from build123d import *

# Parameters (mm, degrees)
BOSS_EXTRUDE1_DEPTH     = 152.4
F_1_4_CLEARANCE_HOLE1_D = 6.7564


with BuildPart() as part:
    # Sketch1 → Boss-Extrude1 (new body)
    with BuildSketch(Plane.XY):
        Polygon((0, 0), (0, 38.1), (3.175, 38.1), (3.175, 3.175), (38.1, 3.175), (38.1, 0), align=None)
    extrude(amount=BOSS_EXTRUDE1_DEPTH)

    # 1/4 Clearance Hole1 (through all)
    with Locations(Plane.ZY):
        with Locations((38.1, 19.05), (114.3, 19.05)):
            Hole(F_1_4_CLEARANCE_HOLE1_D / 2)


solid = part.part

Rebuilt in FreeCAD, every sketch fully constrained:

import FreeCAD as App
import Part
import Sketcher
Q = App.Units.Quantity

doc = App.newDocument("Part")
body = doc.addObject("PartDesign::Body", "Body")

sketch1 = doc.addObject("Sketcher::SketchObject", "Sketch")
body.addObject(sketch1)
sketch1.AttachmentSupport = (doc.XY_Plane, [""])
sketch1.MapMode = "FlatFace"
sketch1.addGeometry(Part.LineSegment(App.Vector(0, 38.1, 0), App.Vector(0, 0, 0)), False)
sketch1.addGeometry(Part.LineSegment(App.Vector(0, 0, 0), App.Vector(38.1, 0, 0)), False)
sketch1.addGeometry(Part.LineSegment(App.Vector(38.1, 0, 0), App.Vector(38.1, 3.2, 0)), False)
sketch1.addGeometry(Part.LineSegment(App.Vector(38.1, 3.2, 0), App.Vector(3.2, 3.2, 0)), False)
sketch1.addGeometry(Part.LineSegment(App.Vector(3.2, 3.2, 0), App.Vector(3.2, 38.1, 0)), False)
sketch1.addGeometry(Part.LineSegment(App.Vector(3.2, 38.1, 0), App.Vector(0, 38.1, 0)), False)
sketch1.addConstraint(Sketcher.Constraint("Coincident", 0, 2, 1, 1))
sketch1.addConstraint(Sketcher.Constraint("Coincident", 1, 2, 2, 1))
sketch1.addConstraint(Sketcher.Constraint("Coincident", 2, 2, 3, 1))
sketch1.addConstraint(Sketcher.Constraint("Coincident", 3, 2, 4, 1))
sketch1.addConstraint(Sketcher.Constraint("Coincident", 4, 2, 5, 1))
sketch1.addConstraint(Sketcher.Constraint("Coincident", 5, 2, 0, 1))
sketch1.addConstraint(Sketcher.Constraint("Vertical", 0))
sketch1.addConstraint(Sketcher.Constraint("Horizontal", 1))
sketch1.addConstraint(Sketcher.Constraint("Vertical", 2))
sketch1.addConstraint(Sketcher.Constraint("Horizontal", 3))
sketch1.addConstraint(Sketcher.Constraint("Vertical", 4))
sketch1.addConstraint(Sketcher.Constraint("Horizontal", 5))
sketch1.addConstraint(Sketcher.Constraint("Coincident", 0, 2, -1, 1))
sketch1.addConstraint(Sketcher.Constraint("Equal", 1, 0))
sketch1.addConstraint(Sketcher.Constraint("Equal", 5, 2))
sketch1.addConstraint(Sketcher.Constraint("DistanceX", 1, 1, 1, 2, Q("1.5 in")))
sketch1.addConstraint(Sketcher.Constraint("DistanceX", 3, 2, 3, 1, Q("1.375 in")))
pad1 = doc.addObject("PartDesign::Pad", "Pad")
body.addObject(pad1)
pad1.Profile = sketch1
pad1.Length = Q("6 in")

sketch2 = doc.addObject("Sketcher::SketchObject", "Sketch001")
body.addObject(sketch2)
sketch2.AttachmentSupport = (doc.YZ_Plane, [""])
sketch2.MapMode = "FlatFace"
sketch2.addGeometry(Part.Circle(App.Vector(19.1, 38.1, 0), App.Vector(0, 0, 1), 3.4), False)
sketch2.addGeometry(Part.Circle(App.Vector(19.1, 114.3, 0), App.Vector(0, 0, 1), 3.4), False)
sketch2.addConstraint(Sketcher.Constraint("Equal", 0, 1))
sketch2.addConstraint(Sketcher.Constraint("Vertical", 0, 3, 1, 3))
sketch2.addConstraint(Sketcher.Constraint("Diameter", 0, Q("0.266 in")))
sketch2.addConstraint(Sketcher.Constraint("DistanceY", 0, 3, 1, 3, Q("3 in")))
sketch2.addConstraint(Sketcher.Constraint("DistanceY", -1, 1, 0, 3, Q("1.5 in")))
sketch2.addConstraint(Sketcher.Constraint("DistanceX", -1, 1, 0, 3, Q("0.75 in")))
doc.recompute()
hole = doc.addObject("PartDesign::Hole", "Hole")
body.addObject(hole)
hole.Profile = sketch2
hole.ThreadType = "None"
hole.Diameter = Q("0.266 in")
hole.DepthType = "ThroughAll"
hole.Reversed = True

doc.recompute()
